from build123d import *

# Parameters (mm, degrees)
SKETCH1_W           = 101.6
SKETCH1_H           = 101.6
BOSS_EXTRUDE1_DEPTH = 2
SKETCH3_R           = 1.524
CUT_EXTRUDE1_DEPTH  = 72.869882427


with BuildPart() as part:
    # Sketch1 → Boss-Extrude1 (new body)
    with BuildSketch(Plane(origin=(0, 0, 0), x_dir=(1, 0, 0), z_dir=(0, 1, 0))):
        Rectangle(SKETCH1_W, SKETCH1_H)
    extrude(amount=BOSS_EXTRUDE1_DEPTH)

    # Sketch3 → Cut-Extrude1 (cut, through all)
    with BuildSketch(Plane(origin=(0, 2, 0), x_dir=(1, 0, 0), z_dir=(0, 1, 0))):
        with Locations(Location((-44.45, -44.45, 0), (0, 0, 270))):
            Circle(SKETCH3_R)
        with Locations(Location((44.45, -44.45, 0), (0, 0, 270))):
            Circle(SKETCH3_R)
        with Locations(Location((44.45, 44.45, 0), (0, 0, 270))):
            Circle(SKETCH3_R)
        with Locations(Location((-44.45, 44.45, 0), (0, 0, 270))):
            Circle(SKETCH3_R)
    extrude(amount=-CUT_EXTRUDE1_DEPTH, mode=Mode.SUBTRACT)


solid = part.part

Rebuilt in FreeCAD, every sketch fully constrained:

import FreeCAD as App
import Part
import Sketcher

V = App.Vector
Q = App.Units.Quantity


def add_polygon(sketch, points):
    """Adds a closed chain of lines whose ends are joined by coincident constraints."""
    first, n = sketch.GeometryCount, len(points)
    for a, b in zip(points, points[1:] + points[:1]):
        sketch.addGeometry(Part.LineSegment(App.Vector(*a, 0), App.Vector(*b, 0)), False)
    for i in range(n):
        sketch.addConstraint(Sketcher.Constraint("Coincident", first + i, 2, first + (i + 1) % n, 1))

doc = App.newDocument("Part")
params = doc.addObject("Spreadsheet::Sheet", "Params")
for row, (alias, value) in enumerate([
    ("sketch1_width", "4 in"),
    ("pad1_length", "2 mm"),
    ("sketch2_diameter", "0.12 in"),
], start=1):
    params.set(f"A{row}", alias)
    params.set(f"B{row}", "=" + value)
    params.setAlias(f"B{row}", alias)

body = doc.addObject("PartDesign::Body", "Body")

# Sketch on XZ plane
sketch1 = body.newObject("Sketcher::SketchObject", "Sketch")
sketch1.AttachmentSupport = (doc.getObject("XZ_Plane"), [""])
sketch1.MapMode = "FlatFace"
add_polygon(sketch1, [(-51, -51), (-51, 51), (51, 51), (51, -51)])  # lines 0-3
sketch1.addConstraint([
    Sketcher.Constraint("Vertical", 0),
    Sketcher.Constraint("Horizontal", 1),
    Sketcher.Constraint("Vertical", 2),
    Sketcher.Constraint("Horizontal", 3),
    Sketcher.Constraint("Symmetric", 0, 2, 2, 2, -1, 1),
    Sketcher.Constraint("Equal", 3, 0),
    Sketcher.Constraint("DistanceX", 1, 1, 1, 2, Q("4 in")),
])
sketch1.setExpression("Constraints[10]", "Params.sketch1_width")
pad1 = body.newObject("PartDesign::Pad", "Pad")
pad1.Profile = sketch1
pad1.setExpression("Length", "Params.pad1_length")
pad1.Reversed = True

# Sketch on XZ plane
sketch2 = body.newObject("Sketcher::SketchObject", "Sketch001")
sketch2.AttachmentSupport = (doc.getObject("XZ_Plane"), [""])
sketch2.MapMode = "FlatFace"
sketch2.AttachmentOffset = App.Placement(V(0, 0, -2), App.Rotation())
sketch2.addGeometry([
    Part.Circle(V(-44.5, 44.5, 0), V(0, 0, 1), 1.5),
    Part.Circle(V(44.5, 44.5, 0), V(0, 0, 1), 1.5),
    Part.Circle(V(44.5, -44.5, 0), V(0, 0, 1), 1.5),
    Part.Circle(V(-44.5, -44.5, 0), V(0, 0, 1), 1.5),
], False)
sketch2.addConstraint([
    Sketcher.Constraint("Equal", 0, 1),
    Sketcher.Constraint("Equal", 1, 2),
    Sketcher.Constraint("Equal", 2, 3),
    Sketcher.Constraint("Symmetric", 0, 3, 2, 3, -1, 1),
    Sketcher.Constraint("Symmetric", 1, 3, 3, 3, -1, 1),
    Sketcher.Constraint("Symmetric", 0, 3, 1, 3, -2),
    Sketcher.Constraint("Diameter", 0, Q("0.12 in")),
    Sketcher.Constraint("DistanceX", 0, 3, 1, 3, Q("3.5 in")),
    Sketcher.Constraint("DistanceY", 2, 3, 1, 3, Q("3.5 in")),
])
sketch2.setExpression("Constraints[6]", "Params.sketch2_diameter")
pocket1 = body.newObject("PartDesign::Pocket", "Pocket")
pocket1.Profile = sketch2
pocket1.Type = "ThroughAll"
pocket1.Reversed = True

doc.recompute()
